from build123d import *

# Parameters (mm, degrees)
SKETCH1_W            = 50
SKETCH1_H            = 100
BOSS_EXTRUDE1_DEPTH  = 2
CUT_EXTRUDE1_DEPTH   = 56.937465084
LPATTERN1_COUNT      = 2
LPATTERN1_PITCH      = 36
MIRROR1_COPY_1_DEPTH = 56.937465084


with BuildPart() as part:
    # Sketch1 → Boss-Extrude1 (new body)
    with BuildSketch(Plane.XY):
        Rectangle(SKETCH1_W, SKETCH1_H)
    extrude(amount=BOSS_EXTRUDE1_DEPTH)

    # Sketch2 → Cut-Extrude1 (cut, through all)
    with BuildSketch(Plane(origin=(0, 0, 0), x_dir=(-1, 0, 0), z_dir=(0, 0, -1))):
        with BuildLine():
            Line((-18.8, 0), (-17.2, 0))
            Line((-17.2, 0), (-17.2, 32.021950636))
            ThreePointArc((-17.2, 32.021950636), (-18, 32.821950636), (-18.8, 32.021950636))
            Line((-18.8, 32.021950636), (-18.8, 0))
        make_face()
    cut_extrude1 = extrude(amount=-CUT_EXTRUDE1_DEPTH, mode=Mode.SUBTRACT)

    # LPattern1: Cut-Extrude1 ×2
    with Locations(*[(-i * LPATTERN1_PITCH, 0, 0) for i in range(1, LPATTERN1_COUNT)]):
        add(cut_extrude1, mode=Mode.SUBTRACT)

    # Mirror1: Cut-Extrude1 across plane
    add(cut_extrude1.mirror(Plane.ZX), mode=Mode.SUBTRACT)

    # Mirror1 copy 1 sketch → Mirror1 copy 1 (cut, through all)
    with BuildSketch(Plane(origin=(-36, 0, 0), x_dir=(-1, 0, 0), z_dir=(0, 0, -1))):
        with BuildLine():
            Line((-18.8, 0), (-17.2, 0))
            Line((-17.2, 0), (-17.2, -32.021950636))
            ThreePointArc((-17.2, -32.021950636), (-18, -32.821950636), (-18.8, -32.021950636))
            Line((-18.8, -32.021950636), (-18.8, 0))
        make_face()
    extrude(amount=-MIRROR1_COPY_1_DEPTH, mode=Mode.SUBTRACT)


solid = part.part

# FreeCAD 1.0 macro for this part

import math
import FreeCAD as App
import Part
import Sketcher

V = App.Vector
Q = App.Units.Quantity


def add_polygon(sketch, points):
    """Adds a closed chain of lines whose ends are joined by coincident constraints."""
    first, n = sketch.GeometryCount, len(points)
    for a, b in zip(points, points[1:] + points[:1]):
        sketch.addGeometry(Part.LineSegment(App.Vector(*a, 0), App.Vector(*b, 0)), False)
    for i in range(n):
        sketch.addConstraint(Sketcher.Constraint("Coincident", first + i, 2, first + (i + 1) % n, 1))

doc = App.newDocument("Part")
body = doc.addObject("PartDesign::Body", "Body")

sketch1 = body.newObject("Sketcher::SketchObject", "Sketch")
sketch1.AttachmentSupport = (doc.getObject("XY_Plane"), [""])
sketch1.MapMode = "FlatFace"
add_polygon(sketch1, [(-25, 50), (-25, -50), (25, -50), (25, 50)])
sketch1.addConstraint([
    Sketcher.Constraint("Vertical", 0),
    Sketcher.Constraint("Horizontal", 1),
    Sketcher.Constraint("Vertical", 2),
    Sketcher.Constraint("Horizontal", 3),
    Sketcher.Constraint("Symmetric", 0, 2, 2, 2, -1, 1),
    Sketcher.Constraint("DistanceX", 1, 1, 1, 2, Q("50 mm")),
    Sketcher.Constraint("DistanceY", 0, 2, 0, 1, Q("100 mm")),
])
pad1 = body.newObject("PartDesign::Pad", "Pad")
pad1.Profile = sketch1
pad1.Length = 2

sketch2 = body.newObject("Sketcher::SketchObject", "Sketch001")
sketch2.AttachmentSupport = (doc.getObject("XY_Plane"), [""])
sketch2.MapMode = "FlatFace"
sketch2.addGeometry([
    Part.LineSegment(V(18.8, 0, 0), V(17.2, 0, 0)),
    Part.LineSegment(V(17.2, 0, 0), V(17.2, 32, 0)),
    Part.ArcOfCircle(Part.Circle(V(18, 32, 0), V(0, 0, 1), 0.8), math.radians(0), math.radians(180)),
    Part.LineSegment(V(18.8, 32, 0), V(18.8, 0, 0)),
], False)
sketch2.addConstraint([
    Sketcher.Constraint("Coincident", 0, 2, 1, 1),
    Sketcher.Constraint("Tangent", 1, 2, 2, 2),
    Sketcher.Constraint("Tangent", 2, 1, 3, 1),
    Sketcher.Constraint("Coincident", 3, 2, 0, 1),
    Sketcher.Constraint("Horizontal", 0),
    Sketcher.Constraint("Vertical", 1),
    Sketcher.Constraint("Vertical", 3),
    Sketcher.Constraint("PointOnObject", 0, 2, -1),
    Sketcher.Constraint("Radius", 2, Q("0.8 mm")),
    Sketcher.Constraint("DistanceX", -1, 1, 2, 3, Q("18 mm")),
    Sketcher.Constraint("DistanceY", 1, 1, 1, 2, Q("32.021951 mm")),
])
pocket1 = body.newObject("PartDesign::Pocket", "Pocket")
pocket1.Profile = sketch2
pocket1.Type = "ThroughAll"
pocket1.Reversed = True
doc.recompute()

linearpattern = body.newObject("PartDesign::LinearPattern", "LinearPattern")
linearpattern.Originals = [pocket1]
linearpattern.Direction = (doc.getObject("X_Axis"), [""])
linearpattern.Mode = "offset"
linearpattern.Offset = 36
linearpattern.Occurrences = 2
linearpattern.Reversed = True
body.Tip = linearpattern
doc.recompute()

mirrored = body.newObject("PartDesign::Mirrored", "Mirrored")
mirrored.Originals = [pocket1]
mirrored.MirrorPlane = (doc.getObject("XZ_Plane"), [""])
body.Tip = mirrored

sketch3 = body.newObject("Sketcher::SketchObject", "Sketch002")
sketch3.AttachmentSupport = (doc.getObject("XY_Plane"), [""])
sketch3.MapMode = "FlatFace"
sketch3.addGeometry([
    Part.LineSegment(V(-18.8, 0, 0), V(-17.2, 0, 0)),
    Part.LineSegment(V(-17.2, 0, 0), V(-17.2, -32, 0)),
    Part.ArcOfCircle(Part.Circle(V(-18, -32, 0), V(0, 0, 1), 0.8), math.radians(180), math.radians(360)),
    Part.LineSegment(V(-18.8, -32, 0), V(-18.8, 0, 0)),
], False)
sketch3.addConstraint([
    Sketcher.Constraint("Coincident", 0, 2, 1, 1),
    Sketcher.Constraint("Tangent", 1, 2, 2, 2),
    Sketcher.Constraint("Tangent", 2, 1, 3, 1),
    Sketcher.Constraint("Coincident", 3, 2, 0, 1),
    Sketcher.Constraint("Horizontal", 0),
    Sketcher.Constraint("Vertical", 1),
    Sketcher.Constraint("Vertical", 3),
    Sketcher.Constraint("PointOnObject", 0, 2, -1),
    Sketcher.Constraint("Radius", 2, Q("0.8 mm")),
    Sketcher.Constraint("DistanceX", 2, 3, -1, 1, Q("18 mm")),
    Sketcher.Constraint("DistanceY", 1, 2, 1, 1, Q("32.021951 mm")),
])
pocket2 = body.newObject("PartDesign::Pocket", "Pocket001")
pocket2.Profile = sketch3
pocket2.Type = "ThroughAll"
pocket2.Reversed = True

doc.recompute()
